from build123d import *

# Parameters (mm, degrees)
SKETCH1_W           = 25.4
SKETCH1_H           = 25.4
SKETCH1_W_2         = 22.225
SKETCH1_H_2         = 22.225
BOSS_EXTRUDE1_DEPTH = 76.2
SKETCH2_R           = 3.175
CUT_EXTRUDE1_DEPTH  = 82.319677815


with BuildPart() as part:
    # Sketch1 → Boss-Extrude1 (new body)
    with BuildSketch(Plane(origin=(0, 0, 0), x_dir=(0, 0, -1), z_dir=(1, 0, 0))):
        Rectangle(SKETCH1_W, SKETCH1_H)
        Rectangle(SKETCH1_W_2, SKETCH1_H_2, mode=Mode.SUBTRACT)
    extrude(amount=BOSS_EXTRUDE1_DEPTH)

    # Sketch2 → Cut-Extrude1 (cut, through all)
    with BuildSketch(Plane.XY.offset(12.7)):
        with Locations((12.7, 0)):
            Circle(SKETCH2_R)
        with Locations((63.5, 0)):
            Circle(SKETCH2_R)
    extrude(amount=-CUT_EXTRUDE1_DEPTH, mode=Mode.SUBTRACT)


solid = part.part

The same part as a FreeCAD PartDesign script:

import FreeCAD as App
import Part
import Sketcher
Q = App.Units.Quantity


def add_polygon(sketch, points):
    """Adds a closed chain of lines whose ends are joined by coincident constraints."""
    first, n = sketch.GeometryCount, len(points)
    for a, b in zip(points, points[1:] + points[:1]):
        sketch.addGeometry(Part.LineSegment(App.Vector(*a, 0), App.Vector(*b, 0)), False)
    for i in range(n):
        sketch.addConstraint(Sketcher.Constraint("Coincident", first + i, 2, first + (i + 1) % n, 1))

doc = App.newDocument("Part")
params = doc.addObject("Spreadsheet::Sheet", "Params")
for row, (alias, value) in enumerate([
    ("sketch1_width", "1 in"),
    ("sketch1_width2", "0.875 in"),
    ("pad1_length", "3 in"),
    ("sketch2_diameter", "0.25 in"),
], start=1):
    params.set(f"A{row}", alias)
    params.set(f"B{row}", "=" + value)
    params.setAlias(f"B{row}", alias)

body = doc.addObject("PartDesign::Body", "Body")

sketch1 = doc.addObject("Sketcher::SketchObject", "Sketch")
body.addObject(sketch1)
sketch1.AttachmentSupport = (doc.YZ_Plane, [""])
sketch1.MapMode = "FlatFace"
add_polygon(sketch1, [(13, 13), (-13, 13), (-13, -13), (13, -13)])
add_polygon(sketch1, [(-11, -11), (-11, 11), (11, 11), (11, -11)])
sketch1.addConstraint([
    Sketcher.Constraint("Horizontal", 0),
    Sketcher.Constraint("Vertical", 1),
    Sketcher.Constraint("Horizontal", 2),
    Sketcher.Constraint("Vertical", 3),
    Sketcher.Constraint("Vertical", 4),
    Sketcher.Constraint("Horizontal", 5),
    Sketcher.Constraint("Vertical", 6),
    Sketcher.Constraint("Horizontal", 7),
    Sketcher.Constraint("Symmetric", 0, 2, 2, 2, -1, 1),
    Sketcher.Constraint("Symmetric", 4, 2, 6, 2, -1, 1),
    Sketcher.Constraint("Equal", 2, 1),
    Sketcher.Constraint("Equal", 7, 4),
    Sketcher.Constraint("DistanceX", 0, 2, 0, 1, Q("1 in")),
    Sketcher.Constraint("DistanceX", 5, 1, 5, 2, Q("0.875 in")),
])
sketch1.setExpression("Constraints[20]", "Params.sketch1_width")
sketch1.setExpression("Constraints[21]", "Params.sketch1_width2")
pad1 = doc.addObject("PartDesign::Pad", "Pad")
body.addObject(pad1)
pad1.Profile = sketch1
pad1.setExpression("Length", "Params.pad1_length")

sketch2 = doc.addObject("Sketcher::SketchObject", "Sketch001")
body.addObject(sketch2)
sketch2.AttachmentSupport = (doc.XY_Plane, [""])
sketch2.MapMode = "FlatFace"
sketch2.AttachmentOffset = App.Placement(App.Vector(0, 0, 0.5 * 25.4), App.Rotation())
sketch2.addGeometry([
    Part.Circle(App.Vector(12.7, 0, 0), App.Vector(0, 0, 1), 3.2),
    Part.Circle(App.Vector(63.5, 0, 0), App.Vector(0, 0, 1), 3.2),
], False)
sketch2.addConstraint([
    Sketcher.Constraint("Equal", 0, 1),
    Sketcher.Constraint("PointOnObject", 0, 3, -1),
    Sketcher.Constraint("PointOnObject", 1, 3, -1),
    Sketcher.Constraint("Diameter", 0, Q("0.25 in")),
    Sketcher.Constraint("DistanceX", 0, 3, 1, 3, Q("2 in")),
    Sketcher.Constraint("DistanceX", -1, 1, 0, 3, Q("0.5 in")),
])
sketch2.setExpression("Constraints[3]", "Params.sketch2_diameter")
pocket1 = doc.addObject("PartDesign::Pocket", "Pocket")
body.addObject(pocket1)
pocket1.Profile = sketch2
pocket1.Type = "ThroughAll"

doc.recompute()
